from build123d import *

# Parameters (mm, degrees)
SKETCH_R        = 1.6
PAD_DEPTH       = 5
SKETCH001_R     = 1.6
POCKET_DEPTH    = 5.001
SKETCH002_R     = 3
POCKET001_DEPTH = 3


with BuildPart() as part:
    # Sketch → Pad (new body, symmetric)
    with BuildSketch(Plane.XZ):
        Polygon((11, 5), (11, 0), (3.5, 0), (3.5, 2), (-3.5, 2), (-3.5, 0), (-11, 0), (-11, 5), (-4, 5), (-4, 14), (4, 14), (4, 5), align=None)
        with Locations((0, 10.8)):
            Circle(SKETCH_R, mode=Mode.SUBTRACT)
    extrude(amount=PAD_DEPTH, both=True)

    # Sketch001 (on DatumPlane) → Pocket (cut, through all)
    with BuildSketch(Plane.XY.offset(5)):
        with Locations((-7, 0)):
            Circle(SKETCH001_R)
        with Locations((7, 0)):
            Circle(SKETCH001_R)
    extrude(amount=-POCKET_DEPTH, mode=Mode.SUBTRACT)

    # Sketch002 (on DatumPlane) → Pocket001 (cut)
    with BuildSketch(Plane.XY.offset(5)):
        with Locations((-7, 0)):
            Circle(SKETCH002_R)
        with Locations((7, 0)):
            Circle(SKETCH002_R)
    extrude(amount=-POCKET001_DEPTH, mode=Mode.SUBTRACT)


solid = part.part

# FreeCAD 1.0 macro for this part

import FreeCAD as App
import Part
import Sketcher

doc = App.newDocument("Part")
body = doc.addObject("PartDesign::Body", "Body")

# Sketch on XZ plane
sketch1 = body.newObject("Sketcher::SketchObject", "Sketch")
sketch1.AttachmentSupport = (doc.getObject("XZ_Plane"), [""])
sketch1.MapMode = "FlatFace"
sketch1.addGeometry([
    Part.LineSegment(App.Vector(11, 0, 0), App.Vector(11, 5, 0)),  # 0
    Part.LineSegment(App.Vector(11, 5, 0), App.Vector(4, 5, 0)),  # 1
    Part.LineSegment(App.Vector(4, 5, 0), App.Vector(4, 14, 0)),  # 2
    Part.LineSegment(App.Vector(4, 14, 0), App.Vector(-4, 14, 0)),  # 3
    Part.LineSegment(App.Vector(-4, 14, 0), App.Vector(-4, 5, 0)),  # 4
    Part.LineSegment(App.Vector(-4, 5, 0), App.Vector(-11, 5, 0)),  # 5
    Part.LineSegment(App.Vector(-11, 5, 0), App.Vector(-11, 0, 0)),  # 6
    Part.LineSegment(App.Vector(-11, 0, 0), App.Vector(-3.5, 0, 0)),  # 7
    Part.LineSegment(App.Vector(-3.5, 0, 0), App.Vector(-3.5, 2, 0)),  # 8
    Part.LineSegment(App.Vector(-3.5, 2, 0), App.Vector(3.5, 2, 0)),  # 9
    Part.LineSegment(App.Vector(3.5, 2, 0), App.Vector(3.5, 0, 0)),  # 10
    Part.LineSegment(App.Vector(3.5, 0, 0), App.Vector(11, 0, 0)),  # 11
    Part.Circle(App.Vector(0, 10.8, 0), App.Vector(0, 0, 1), 1.6),  # 12
], False)
sketch1.addConstraint([
    Sketcher.Constraint("Coincident", 0, 2, 1, 1),
    Sketcher.Constraint("Coincident", 1, 2, 2, 1),
    Sketcher.Constraint("Coincident", 2, 2, 3, 1),
    Sketcher.Constraint("Coincident", 3, 2, 4, 1),
    Sketcher.Constraint("Coincident", 4, 2, 5, 1),
    Sketcher.Constraint("Coincident", 5, 2, 6, 1),
    Sketcher.Constraint("Coincident", 6, 2, 7, 1),
    Sketcher.Constraint("Coincident", 7, 2, 8, 1),
    Sketcher.Constraint("Coincident", 8, 2, 9, 1),
    Sketcher.Constraint("Coincident", 9, 2, 10, 1),
    Sketcher.Constraint("Coincident", 10, 2, 11, 1),
    Sketcher.Constraint("Coincident", 11, 2, 0, 1),
    Sketcher.Constraint("Vertical", 0),
    Sketcher.Constraint("Horizontal", 1),
    Sketcher.Constraint("Vertical", 2),
    Sketcher.Constraint("Horizontal", 3),
    Sketcher.Constraint("Vertical", 4),
    Sketcher.Constraint("Horizontal", 5),
    Sketcher.Constraint("Vertical", 6),
    Sketcher.Constraint("Horizontal", 7),
    Sketcher.Constraint("Vertical", 8),
    Sketcher.Constraint("Horizontal", 9),
    Sketcher.Constraint("Vertical", 10),
    Sketcher.Constraint("Horizontal", 11),
    Sketcher.Constraint("Symmetric", 7, 2, 10, 2, -1, 1),
    Sketcher.Constraint("Symmetric", 1, 2, 4, 2, -2),
    Sketcher.Constraint("Symmetric", 6, 2, 11, 2, -2),
    Sketcher.Constraint("PointOnObject", 12, 3, -2),
    Sketcher.Constraint("Equal", 5, 9),
    Sketcher.Constraint("Diameter", 12, 3.2),
    Sketcher.Constraint("DistanceX", 1, 2, 1, 1, 7.0),
    Sketcher.Constraint("DistanceX", 3, 2, 3, 1, 8.0),
    Sketcher.Constraint("DistanceY", 0, 1, 0, 2, 5.0),
    Sketcher.Constraint("DistanceY", 2, 1, 2, 2, 9.0),
    Sketcher.Constraint("DistanceY", 8, 1, 8, 2, 2.0),
    Sketcher.Constraint("DistanceY", -1, 1, 12, 3, 10.8),
])
pad1 = body.newObject("PartDesign::Pad", "Pad")
pad1.Profile = sketch1
pad1.Length = 10
pad1.Midplane = True

# Sketch on XY plane
sketch2 = body.newObject("Sketcher::SketchObject", "Sketch001")
sketch2.AttachmentSupport = (doc.getObject("XY_Plane"), [""])
sketch2.MapMode = "FlatFace"
sketch2.AttachmentOffset = App.Placement(App.Vector(0, 0, 5), App.Rotation())
sketch2.addGeometry([
    Part.Circle(App.Vector(-7, 0, 0), App.Vector(0, 0, 1), 1.6),
    Part.Circle(App.Vector(7, 0, 0), App.Vector(0, 0, 1), 1.6),
], False)
sketch2.addConstraint([
    Sketcher.Constraint("Equal", 0, 1),
    Sketcher.Constraint("Symmetric", 0, 3, 1, 3, -1, 1),
    Sketcher.Constraint("PointOnObject", 0, 3, -1),
    Sketcher.Constraint("Diameter", 0, 3.2),
    Sketcher.Constraint("DistanceX", 0, 3, -1, 1, 7.0),
])
pocket1 = body.newObject("PartDesign::Pocket", "Pocket")
pocket1.Profile = sketch2
pocket1.Type = "ThroughAll"

# Sketch on XY plane
sketch3 = body.newObject("Sketcher::SketchObject", "Sketch002")
sketch3.AttachmentSupport = (doc.getObject("XY_Plane"), [""])
sketch3.MapMode = "FlatFace"
sketch3.AttachmentOffset = App.Placement(App.Vector(0, 0, 5), App.Rotation())
sketch3.addGeometry([
    Part.Circle(App.Vector(-7, 0, 0), App.Vector(0, 0, 1), 3),
    Part.Circle(App.Vector(7, 0, 0), App.Vector(0, 0, 1), 3),
], False)
sketch3.addConstraint([
    Sketcher.Constraint("Equal", 0, 1),
    Sketcher.Constraint("Symmetric", 0, 3, 1, 3, -1, 1),
    Sketcher.Constraint("PointOnObject", 0, 3, -1),
    Sketcher.Constraint("Diameter", 0, 6.0),
    Sketcher.Constraint("DistanceX", 0, 3, -1, 1, 7.0),
])
pocket2 = body.newObject("PartDesign::Pocket", "Pocket001")
pocket2.Profile = sketch3
pocket2.Length = 3

doc.recompute()
